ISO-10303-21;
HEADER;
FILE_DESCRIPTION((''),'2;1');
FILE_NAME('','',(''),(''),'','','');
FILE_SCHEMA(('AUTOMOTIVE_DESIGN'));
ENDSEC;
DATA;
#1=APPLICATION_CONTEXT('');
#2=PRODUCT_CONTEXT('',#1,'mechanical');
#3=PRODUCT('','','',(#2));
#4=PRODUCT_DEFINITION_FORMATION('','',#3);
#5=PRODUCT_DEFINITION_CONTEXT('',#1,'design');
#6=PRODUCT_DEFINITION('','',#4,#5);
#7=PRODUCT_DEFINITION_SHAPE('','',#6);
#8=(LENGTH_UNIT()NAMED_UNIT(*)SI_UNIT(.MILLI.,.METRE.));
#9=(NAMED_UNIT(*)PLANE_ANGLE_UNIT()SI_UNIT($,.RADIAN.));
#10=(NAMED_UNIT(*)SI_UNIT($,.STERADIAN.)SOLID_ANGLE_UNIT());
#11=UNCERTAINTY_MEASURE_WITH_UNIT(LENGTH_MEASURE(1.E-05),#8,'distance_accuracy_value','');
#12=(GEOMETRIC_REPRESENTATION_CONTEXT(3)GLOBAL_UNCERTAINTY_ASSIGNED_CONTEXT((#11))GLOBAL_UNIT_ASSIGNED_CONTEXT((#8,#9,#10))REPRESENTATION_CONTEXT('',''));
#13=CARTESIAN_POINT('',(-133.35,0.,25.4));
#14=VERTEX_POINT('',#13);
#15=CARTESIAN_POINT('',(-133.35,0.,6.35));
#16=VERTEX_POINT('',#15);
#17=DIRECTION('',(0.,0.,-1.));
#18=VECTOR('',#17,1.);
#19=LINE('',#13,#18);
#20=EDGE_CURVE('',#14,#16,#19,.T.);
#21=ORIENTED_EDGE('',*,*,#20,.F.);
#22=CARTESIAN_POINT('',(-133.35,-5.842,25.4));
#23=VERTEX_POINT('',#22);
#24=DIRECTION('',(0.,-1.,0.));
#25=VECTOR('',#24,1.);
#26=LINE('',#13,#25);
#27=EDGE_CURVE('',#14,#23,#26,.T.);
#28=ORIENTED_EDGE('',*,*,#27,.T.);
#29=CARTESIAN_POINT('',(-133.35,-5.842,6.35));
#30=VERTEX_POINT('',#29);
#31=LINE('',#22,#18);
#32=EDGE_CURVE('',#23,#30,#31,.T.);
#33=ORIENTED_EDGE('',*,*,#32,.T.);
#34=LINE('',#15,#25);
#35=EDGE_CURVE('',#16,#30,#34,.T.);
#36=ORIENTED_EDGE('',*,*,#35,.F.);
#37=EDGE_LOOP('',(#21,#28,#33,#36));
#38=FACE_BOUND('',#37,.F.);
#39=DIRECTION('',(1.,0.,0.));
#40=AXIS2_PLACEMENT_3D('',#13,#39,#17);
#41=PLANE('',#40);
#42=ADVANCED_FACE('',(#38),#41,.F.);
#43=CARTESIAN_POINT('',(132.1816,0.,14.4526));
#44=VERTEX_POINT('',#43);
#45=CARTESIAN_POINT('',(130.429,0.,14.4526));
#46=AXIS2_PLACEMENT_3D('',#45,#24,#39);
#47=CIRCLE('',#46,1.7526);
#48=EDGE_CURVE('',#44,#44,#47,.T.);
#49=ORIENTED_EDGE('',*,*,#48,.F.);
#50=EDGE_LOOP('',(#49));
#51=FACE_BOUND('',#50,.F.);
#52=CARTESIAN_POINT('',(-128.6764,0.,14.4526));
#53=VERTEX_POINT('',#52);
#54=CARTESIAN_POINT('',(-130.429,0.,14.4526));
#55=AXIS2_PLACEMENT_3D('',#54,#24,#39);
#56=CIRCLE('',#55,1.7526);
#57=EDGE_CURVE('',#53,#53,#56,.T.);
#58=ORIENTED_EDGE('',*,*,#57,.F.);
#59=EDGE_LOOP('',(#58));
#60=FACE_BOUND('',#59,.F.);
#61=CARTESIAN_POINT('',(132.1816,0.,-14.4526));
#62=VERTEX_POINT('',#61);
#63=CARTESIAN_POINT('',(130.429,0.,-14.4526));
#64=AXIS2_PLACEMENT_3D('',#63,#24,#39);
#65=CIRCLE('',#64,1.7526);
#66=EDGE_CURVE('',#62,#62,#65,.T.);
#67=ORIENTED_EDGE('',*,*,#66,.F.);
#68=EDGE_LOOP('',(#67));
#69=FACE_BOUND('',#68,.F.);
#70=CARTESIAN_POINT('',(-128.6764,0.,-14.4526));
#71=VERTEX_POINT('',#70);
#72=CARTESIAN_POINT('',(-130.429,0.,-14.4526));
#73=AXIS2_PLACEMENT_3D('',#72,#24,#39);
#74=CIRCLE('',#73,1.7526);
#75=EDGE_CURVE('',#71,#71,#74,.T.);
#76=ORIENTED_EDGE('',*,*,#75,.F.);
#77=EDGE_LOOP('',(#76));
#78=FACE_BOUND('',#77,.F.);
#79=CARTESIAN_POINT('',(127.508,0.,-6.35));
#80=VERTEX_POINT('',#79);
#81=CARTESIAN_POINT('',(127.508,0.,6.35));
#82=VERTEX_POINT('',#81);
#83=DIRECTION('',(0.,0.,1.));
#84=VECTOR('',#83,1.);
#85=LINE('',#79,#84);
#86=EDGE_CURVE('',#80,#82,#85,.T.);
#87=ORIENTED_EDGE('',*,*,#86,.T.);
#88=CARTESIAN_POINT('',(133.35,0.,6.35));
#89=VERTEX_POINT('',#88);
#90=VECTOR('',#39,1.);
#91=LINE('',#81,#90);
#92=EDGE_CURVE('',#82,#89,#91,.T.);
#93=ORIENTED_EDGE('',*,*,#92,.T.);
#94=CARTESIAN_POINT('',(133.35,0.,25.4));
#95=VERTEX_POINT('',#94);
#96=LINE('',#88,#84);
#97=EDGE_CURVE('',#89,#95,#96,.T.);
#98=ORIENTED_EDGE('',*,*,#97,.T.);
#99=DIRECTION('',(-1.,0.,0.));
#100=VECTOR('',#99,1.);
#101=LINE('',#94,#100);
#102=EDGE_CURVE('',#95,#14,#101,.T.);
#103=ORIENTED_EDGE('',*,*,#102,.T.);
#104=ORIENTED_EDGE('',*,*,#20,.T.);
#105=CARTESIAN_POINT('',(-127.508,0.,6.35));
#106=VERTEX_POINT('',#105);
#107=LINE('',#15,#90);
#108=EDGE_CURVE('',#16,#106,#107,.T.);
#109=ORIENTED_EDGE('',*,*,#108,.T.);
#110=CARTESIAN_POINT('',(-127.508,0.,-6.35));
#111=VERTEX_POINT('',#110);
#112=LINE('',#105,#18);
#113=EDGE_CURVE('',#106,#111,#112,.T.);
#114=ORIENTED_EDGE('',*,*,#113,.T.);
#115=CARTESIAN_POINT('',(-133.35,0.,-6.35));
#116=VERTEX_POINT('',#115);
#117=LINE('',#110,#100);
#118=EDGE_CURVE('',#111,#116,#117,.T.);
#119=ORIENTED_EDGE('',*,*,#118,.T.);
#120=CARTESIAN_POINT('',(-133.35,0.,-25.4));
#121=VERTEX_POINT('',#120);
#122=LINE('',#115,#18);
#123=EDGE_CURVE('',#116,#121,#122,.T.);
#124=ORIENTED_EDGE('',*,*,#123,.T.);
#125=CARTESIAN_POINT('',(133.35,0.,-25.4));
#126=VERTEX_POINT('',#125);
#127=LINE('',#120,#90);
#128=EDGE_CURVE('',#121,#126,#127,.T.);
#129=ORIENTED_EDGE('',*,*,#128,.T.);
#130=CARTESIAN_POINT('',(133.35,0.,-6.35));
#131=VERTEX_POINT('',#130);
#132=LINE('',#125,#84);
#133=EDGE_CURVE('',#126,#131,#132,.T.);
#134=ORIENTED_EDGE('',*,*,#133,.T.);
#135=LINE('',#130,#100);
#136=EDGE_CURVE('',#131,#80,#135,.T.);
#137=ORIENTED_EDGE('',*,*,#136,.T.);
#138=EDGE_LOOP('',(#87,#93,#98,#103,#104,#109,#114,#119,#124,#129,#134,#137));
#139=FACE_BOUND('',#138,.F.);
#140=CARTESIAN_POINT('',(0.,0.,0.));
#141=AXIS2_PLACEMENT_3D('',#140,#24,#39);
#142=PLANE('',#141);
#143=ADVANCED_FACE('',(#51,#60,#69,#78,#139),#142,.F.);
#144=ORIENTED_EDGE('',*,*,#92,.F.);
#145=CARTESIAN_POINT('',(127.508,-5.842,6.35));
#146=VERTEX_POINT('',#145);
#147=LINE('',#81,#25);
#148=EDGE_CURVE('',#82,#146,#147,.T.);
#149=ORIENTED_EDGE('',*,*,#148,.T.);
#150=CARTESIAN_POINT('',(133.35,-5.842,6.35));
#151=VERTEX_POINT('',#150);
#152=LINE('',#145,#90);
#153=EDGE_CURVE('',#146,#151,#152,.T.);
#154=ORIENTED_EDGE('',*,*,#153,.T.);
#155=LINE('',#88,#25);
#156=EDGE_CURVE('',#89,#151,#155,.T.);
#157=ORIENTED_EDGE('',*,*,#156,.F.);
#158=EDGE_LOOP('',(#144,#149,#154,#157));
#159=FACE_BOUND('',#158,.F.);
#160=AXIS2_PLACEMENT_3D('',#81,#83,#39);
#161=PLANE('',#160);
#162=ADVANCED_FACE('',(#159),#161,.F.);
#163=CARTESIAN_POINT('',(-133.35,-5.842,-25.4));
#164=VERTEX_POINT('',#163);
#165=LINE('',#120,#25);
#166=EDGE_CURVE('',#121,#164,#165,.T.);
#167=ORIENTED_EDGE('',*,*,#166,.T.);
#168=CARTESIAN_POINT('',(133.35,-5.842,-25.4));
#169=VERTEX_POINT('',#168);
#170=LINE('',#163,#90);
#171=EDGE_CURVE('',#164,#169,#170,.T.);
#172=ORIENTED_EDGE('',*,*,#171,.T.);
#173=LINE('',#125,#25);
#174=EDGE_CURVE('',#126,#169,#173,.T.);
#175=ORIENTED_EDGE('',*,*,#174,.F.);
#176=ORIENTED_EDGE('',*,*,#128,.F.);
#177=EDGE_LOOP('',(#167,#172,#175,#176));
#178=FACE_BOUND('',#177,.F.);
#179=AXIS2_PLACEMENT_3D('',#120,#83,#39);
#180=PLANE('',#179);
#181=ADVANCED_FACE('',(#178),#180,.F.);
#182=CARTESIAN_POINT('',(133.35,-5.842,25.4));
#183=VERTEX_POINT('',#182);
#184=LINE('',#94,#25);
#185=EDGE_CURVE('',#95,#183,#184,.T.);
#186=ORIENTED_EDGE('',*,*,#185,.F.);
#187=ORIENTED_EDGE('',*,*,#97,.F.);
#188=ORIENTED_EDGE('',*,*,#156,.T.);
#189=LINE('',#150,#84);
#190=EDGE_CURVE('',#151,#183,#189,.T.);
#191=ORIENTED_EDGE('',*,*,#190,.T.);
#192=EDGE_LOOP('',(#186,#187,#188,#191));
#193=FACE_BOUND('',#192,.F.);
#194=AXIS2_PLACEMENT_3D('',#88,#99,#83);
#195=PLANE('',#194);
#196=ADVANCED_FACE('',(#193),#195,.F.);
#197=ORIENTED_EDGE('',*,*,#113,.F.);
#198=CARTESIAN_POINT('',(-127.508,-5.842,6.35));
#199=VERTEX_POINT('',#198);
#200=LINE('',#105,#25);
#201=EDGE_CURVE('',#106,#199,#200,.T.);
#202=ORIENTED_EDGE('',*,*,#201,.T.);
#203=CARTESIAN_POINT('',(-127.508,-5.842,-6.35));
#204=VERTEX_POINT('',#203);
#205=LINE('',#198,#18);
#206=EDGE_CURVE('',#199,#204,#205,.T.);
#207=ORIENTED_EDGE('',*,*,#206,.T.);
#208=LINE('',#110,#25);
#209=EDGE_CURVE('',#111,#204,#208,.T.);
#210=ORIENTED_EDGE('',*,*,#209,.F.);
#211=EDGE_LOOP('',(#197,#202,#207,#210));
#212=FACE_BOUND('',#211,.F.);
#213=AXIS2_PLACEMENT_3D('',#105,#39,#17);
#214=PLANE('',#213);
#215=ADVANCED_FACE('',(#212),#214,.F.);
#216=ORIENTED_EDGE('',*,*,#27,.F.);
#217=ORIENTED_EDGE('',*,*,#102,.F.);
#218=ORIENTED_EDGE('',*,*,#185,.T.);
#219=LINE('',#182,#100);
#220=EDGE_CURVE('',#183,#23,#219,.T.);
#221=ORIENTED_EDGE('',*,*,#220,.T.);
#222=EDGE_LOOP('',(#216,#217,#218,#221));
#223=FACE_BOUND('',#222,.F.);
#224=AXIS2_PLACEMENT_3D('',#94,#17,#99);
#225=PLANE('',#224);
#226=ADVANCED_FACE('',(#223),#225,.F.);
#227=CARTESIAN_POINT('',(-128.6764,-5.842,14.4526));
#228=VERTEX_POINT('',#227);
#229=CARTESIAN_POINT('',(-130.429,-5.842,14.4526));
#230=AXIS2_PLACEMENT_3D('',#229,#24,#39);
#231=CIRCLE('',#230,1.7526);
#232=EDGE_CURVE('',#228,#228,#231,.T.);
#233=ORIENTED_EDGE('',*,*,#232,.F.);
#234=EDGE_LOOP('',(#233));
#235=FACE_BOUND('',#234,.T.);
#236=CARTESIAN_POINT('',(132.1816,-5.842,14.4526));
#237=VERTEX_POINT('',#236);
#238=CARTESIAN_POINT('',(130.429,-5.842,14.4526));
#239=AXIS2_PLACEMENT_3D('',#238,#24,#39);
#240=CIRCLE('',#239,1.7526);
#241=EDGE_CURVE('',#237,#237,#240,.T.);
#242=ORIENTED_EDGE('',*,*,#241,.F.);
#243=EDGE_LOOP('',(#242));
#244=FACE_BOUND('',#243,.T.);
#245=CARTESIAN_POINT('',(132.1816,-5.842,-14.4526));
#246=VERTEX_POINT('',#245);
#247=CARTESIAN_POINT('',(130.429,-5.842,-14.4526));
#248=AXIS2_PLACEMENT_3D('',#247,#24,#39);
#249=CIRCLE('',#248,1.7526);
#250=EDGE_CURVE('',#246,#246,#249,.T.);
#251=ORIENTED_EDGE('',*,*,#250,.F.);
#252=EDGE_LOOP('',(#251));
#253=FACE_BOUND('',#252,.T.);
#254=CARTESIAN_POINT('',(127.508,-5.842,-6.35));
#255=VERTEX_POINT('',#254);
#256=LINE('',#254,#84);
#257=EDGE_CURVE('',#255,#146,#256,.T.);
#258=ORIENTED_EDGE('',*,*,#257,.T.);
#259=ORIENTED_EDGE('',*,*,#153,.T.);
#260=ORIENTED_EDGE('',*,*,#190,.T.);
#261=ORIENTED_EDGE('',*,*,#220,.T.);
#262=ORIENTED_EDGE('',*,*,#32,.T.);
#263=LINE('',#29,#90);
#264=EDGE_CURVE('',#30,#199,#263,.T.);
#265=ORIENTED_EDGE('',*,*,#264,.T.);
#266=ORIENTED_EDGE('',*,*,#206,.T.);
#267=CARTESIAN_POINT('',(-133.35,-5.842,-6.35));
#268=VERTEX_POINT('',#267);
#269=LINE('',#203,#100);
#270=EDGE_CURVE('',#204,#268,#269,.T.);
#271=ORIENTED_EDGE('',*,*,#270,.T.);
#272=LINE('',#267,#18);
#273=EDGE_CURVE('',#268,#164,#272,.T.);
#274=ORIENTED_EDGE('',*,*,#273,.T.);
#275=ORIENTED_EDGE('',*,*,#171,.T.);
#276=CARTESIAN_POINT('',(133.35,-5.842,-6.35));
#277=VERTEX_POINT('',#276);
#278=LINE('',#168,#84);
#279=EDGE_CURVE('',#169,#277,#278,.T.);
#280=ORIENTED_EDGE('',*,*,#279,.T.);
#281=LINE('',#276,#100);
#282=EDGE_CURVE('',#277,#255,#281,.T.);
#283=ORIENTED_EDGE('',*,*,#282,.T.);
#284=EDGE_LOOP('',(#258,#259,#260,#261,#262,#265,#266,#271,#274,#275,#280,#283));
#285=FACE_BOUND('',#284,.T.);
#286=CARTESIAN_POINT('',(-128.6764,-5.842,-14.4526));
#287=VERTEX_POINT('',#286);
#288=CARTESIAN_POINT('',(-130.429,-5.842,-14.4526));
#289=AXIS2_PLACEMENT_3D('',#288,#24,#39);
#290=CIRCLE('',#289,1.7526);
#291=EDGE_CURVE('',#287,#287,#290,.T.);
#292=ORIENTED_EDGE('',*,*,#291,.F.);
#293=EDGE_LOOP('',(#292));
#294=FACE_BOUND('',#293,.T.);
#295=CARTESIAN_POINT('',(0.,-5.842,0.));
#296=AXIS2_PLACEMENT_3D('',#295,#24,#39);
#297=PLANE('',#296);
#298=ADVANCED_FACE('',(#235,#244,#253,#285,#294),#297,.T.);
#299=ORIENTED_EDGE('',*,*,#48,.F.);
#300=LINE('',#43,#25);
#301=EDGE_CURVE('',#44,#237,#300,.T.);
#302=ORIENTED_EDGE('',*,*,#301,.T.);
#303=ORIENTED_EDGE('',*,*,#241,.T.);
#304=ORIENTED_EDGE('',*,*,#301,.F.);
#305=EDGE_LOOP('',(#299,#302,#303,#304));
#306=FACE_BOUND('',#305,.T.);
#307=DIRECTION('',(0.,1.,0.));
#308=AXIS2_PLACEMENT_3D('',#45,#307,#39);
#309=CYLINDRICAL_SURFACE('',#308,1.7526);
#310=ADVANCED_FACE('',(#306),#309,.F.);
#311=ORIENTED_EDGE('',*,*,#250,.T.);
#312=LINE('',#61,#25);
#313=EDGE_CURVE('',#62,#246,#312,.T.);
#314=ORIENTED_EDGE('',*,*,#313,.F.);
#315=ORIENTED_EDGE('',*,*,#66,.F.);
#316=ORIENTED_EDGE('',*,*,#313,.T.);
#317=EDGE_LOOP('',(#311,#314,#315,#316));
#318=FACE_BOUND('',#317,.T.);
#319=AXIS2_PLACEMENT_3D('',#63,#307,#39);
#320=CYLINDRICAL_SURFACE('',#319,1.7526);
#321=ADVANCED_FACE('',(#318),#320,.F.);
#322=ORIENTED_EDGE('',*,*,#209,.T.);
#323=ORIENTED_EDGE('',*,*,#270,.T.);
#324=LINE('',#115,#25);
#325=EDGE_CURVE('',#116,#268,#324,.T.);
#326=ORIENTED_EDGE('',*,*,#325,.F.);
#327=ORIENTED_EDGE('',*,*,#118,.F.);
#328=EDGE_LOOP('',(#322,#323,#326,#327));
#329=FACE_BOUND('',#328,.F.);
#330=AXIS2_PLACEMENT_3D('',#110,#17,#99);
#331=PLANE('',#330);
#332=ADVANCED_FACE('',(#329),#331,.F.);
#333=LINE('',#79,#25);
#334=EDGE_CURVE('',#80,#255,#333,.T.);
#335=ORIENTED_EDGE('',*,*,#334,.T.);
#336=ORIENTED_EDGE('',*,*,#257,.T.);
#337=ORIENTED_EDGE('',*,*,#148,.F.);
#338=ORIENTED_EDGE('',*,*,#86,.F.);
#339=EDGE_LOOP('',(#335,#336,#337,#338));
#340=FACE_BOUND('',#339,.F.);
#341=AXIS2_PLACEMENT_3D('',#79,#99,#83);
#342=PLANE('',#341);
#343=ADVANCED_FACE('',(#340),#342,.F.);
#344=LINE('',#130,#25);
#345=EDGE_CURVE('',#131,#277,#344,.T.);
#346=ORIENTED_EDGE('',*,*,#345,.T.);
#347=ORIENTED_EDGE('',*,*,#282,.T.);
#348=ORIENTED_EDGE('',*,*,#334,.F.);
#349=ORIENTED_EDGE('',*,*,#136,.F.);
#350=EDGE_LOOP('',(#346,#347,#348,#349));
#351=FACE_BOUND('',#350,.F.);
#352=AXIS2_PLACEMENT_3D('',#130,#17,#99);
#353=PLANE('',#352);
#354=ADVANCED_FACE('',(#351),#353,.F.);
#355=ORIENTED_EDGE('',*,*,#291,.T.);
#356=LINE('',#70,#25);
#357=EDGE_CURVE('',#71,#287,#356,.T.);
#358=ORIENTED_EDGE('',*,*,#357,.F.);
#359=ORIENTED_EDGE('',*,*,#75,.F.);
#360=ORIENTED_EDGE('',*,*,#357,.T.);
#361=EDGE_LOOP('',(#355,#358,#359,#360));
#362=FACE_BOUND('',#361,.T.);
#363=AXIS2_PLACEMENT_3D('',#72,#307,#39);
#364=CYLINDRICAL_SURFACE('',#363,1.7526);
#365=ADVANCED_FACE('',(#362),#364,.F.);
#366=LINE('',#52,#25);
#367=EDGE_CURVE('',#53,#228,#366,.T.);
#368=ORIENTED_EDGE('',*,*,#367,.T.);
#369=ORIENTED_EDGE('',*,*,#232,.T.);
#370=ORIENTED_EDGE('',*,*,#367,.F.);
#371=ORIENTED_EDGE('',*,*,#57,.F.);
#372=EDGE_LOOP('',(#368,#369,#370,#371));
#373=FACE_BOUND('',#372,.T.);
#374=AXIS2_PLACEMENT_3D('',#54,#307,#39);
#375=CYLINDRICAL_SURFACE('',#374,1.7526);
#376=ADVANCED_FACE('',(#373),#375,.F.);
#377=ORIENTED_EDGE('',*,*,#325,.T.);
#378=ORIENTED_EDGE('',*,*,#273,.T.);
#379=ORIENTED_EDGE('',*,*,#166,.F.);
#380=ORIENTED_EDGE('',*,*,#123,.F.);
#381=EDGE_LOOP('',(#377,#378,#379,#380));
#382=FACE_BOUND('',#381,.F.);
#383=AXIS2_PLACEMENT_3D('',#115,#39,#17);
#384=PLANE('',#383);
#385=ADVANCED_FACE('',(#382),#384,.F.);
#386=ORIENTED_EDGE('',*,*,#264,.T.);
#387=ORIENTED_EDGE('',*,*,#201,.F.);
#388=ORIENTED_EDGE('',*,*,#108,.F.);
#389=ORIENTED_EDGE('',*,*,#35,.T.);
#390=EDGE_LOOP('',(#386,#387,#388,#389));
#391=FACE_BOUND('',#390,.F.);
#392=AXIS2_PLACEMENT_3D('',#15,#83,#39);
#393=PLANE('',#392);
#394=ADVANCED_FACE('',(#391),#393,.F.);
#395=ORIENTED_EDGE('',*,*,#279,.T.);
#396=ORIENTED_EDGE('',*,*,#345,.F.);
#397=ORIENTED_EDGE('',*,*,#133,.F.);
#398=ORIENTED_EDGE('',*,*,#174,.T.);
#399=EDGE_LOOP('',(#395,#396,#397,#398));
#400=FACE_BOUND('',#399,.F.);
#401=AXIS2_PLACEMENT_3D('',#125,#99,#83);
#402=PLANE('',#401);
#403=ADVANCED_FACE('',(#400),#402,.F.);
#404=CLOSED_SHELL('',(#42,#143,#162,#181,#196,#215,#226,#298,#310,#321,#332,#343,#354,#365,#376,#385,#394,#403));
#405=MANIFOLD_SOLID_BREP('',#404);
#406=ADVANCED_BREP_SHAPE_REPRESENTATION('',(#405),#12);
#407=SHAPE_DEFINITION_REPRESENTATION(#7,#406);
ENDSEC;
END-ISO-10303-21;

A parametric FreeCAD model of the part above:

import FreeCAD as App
import Part
import Sketcher
from FreeCAD import Vector
Q = App.Units.Quantity

doc = App.newDocument("Part")
body = doc.addObject("PartDesign::Body", "Body")

sketch1 = body.newObject("Sketcher::SketchObject", "Sketch")
sketch1.AttachmentSupport = (doc.getObject("XZ_Plane"), [""])
sketch1.MapMode = "FlatFace"
sketch1.addGeometry(Part.LineSegment(Vector(133.3, 25.4, 0), Vector(-133.3, 25.4, 0)), False)
sketch1.addGeometry(Part.LineSegment(Vector(-133.3, 25.4, 0), Vector(-133.3, 6.3, 0)), False)
sketch1.addGeometry(Part.LineSegment(Vector(-133.3, 6.3, 0), Vector(-127.5, 6.3, 0)), False)
sketch1.addGeometry(Part.LineSegment(Vector(-127.5, 6.3, 0), Vector(-127.5, -6.3, 0)), False)
sketch1.addGeometry(Part.LineSegment(Vector(-127.5, -6.3, 0), Vector(-133.3, -6.3, 0)), False)
sketch1.addGeometry(Part.LineSegment(Vector(-133.3, -6.3, 0), Vector(-133.3, -25.4, 0)), False)
sketch1.addGeometry(Part.LineSegment(Vector(-133.3, -25.4, 0), Vector(133.3, -25.4, 0)), False)
sketch1.addGeometry(Part.LineSegment(Vector(133.3, -25.4, 0), Vector(133.3, -6.3, 0)), False)
sketch1.addGeometry(Part.LineSegment(Vector(133.3, -6.3, 0), Vector(127.5, -6.3, 0)), False)
sketch1.addGeometry(Part.LineSegment(Vector(127.5, -6.3, 0), Vector(127.5, 6.3, 0)), False)
sketch1.addGeometry(Part.LineSegment(Vector(127.5, 6.3, 0), Vector(133.3, 6.3, 0)), False)
sketch1.addGeometry(Part.LineSegment(Vector(133.3, 6.3, 0), Vector(133.3, 25.4, 0)), False)
sketch1.addGeometry(Part.Circle(Vector(-130.4, -14.5, 0), Vector(0, 0, 1), 1.8), False)
sketch1.addGeometry(Part.Circle(Vector(130.4, -14.5, 0), Vector(0, 0, 1), 1.8), False)
sketch1.addGeometry(Part.Circle(Vector(-130.4, 14.5, 0), Vector(0, 0, 1), 1.8), False)
sketch1.addGeometry(Part.Circle(Vector(130.4, 14.5, 0), Vector(0, 0, 1), 1.8), False)
sketch1.addConstraint(Sketcher.Constraint("Coincident", 0, 2, 1, 1))
sketch1.addConstraint(Sketcher.Constraint("Coincident", 1, 2, 2, 1))
sketch1.addConstraint(Sketcher.Constraint("Coincident", 2, 2, 3, 1))
sketch1.addConstraint(Sketcher.Constraint("Coincident", 3, 2, 4, 1))
sketch1.addConstraint(Sketcher.Constraint("Coincident", 4, 2, 5, 1))
sketch1.addConstraint(Sketcher.Constraint("Coincident", 5, 2, 6, 1))
sketch1.addConstraint(Sketcher.Constraint("Coincident", 6, 2, 7, 1))
sketch1.addConstraint(Sketcher.Constraint("Coincident", 7, 2, 8, 1))
sketch1.addConstraint(Sketcher.Constraint("Coincident", 8, 2, 9, 1))
sketch1.addConstraint(Sketcher.Constraint("Coincident", 9, 2, 10, 1))
sketch1.addConstraint(Sketcher.Constraint("Coincident", 10, 2, 11, 1))
sketch1.addConstraint(Sketcher.Constraint("Coincident", 11, 2, 0, 1))
sketch1.addConstraint(Sketcher.Constraint("Horizontal", 0))
sketch1.addConstraint(Sketcher.Constraint("Vertical", 1))
sketch1.addConstraint(Sketcher.Constraint("Horizontal", 2))
sketch1.addConstraint(Sketcher.Constraint("Vertical", 3))
sketch1.addConstraint(Sketcher.Constraint("Horizontal", 4))
sketch1.addConstraint(Sketcher.Constraint("Vertical", 5))
sketch1.addConstraint(Sketcher.Constraint("Horizontal", 6))
sketch1.addConstraint(Sketcher.Constraint("Vertical", 7))
sketch1.addConstraint(Sketcher.Constraint("Horizontal", 8))
sketch1.addConstraint(Sketcher.Constraint("Vertical", 9))
sketch1.addConstraint(Sketcher.Constraint("Horizontal", 10))
sketch1.addConstraint(Sketcher.Constraint("Vertical", 11))
sketch1.addConstraint(Sketcher.Constraint("Equal", 12, 13))
sketch1.addConstraint(Sketcher.Constraint("Equal", 13, 14))
sketch1.addConstraint(Sketcher.Constraint("Equal", 14, 15))
sketch1.addConstraint(Sketcher.Constraint("Symmetric", 13, 3, 14, 3, -1, 1))
sketch1.addConstraint(Sketcher.Constraint("Symmetric", 12, 3, 15, 3, -1, 1))
sketch1.addConstraint(Sketcher.Constraint("Symmetric", 0, 2, 6, 2, -1, 1))
sketch1.addConstraint(Sketcher.Constraint("Symmetric", 2, 2, 8, 2, -1, 1))
sketch1.addConstraint(Sketcher.Constraint("Symmetric", 4, 2, 10, 2, -1, 1))
sketch1.addConstraint(Sketcher.Constraint("Symmetric", 12, 3, 13, 3, -2))
sketch1.addConstraint(Sketcher.Constraint("Symmetric", 4, 2, 7, 2, -2))
sketch1.addConstraint(Sketcher.Constraint("Diameter", 12, Q("0.138 in")))
sketch1.addConstraint(Sketcher.Constraint("DistanceX", 0, 2, 0, 1, Q("10.5 in")))
sketch1.addConstraint(Sketcher.Constraint("DistanceY", 3, 2, 3, 1, Q("0.5 in")))
sketch1.addConstraint(Sketcher.Constraint("DistanceY", -1, 1, 0, 2, Q("1 in")))
sketch1.addConstraint(Sketcher.Constraint("DistanceX", 2, 1, 2, 2, Q("0.23 in")))
sketch1.addConstraint(Sketcher.Constraint("DistanceX", 12, 3, 13, 3, Q("10.27 in")))
sketch1.addConstraint(Sketcher.Constraint("DistanceY", 12, 3, -1, 1, Q("0.569 in")))
pad1 = body.newObject("PartDesign::Pad", "Pad")
pad1.Profile = sketch1
pad1.Length = Q("0.23 in")

doc.recompute()
